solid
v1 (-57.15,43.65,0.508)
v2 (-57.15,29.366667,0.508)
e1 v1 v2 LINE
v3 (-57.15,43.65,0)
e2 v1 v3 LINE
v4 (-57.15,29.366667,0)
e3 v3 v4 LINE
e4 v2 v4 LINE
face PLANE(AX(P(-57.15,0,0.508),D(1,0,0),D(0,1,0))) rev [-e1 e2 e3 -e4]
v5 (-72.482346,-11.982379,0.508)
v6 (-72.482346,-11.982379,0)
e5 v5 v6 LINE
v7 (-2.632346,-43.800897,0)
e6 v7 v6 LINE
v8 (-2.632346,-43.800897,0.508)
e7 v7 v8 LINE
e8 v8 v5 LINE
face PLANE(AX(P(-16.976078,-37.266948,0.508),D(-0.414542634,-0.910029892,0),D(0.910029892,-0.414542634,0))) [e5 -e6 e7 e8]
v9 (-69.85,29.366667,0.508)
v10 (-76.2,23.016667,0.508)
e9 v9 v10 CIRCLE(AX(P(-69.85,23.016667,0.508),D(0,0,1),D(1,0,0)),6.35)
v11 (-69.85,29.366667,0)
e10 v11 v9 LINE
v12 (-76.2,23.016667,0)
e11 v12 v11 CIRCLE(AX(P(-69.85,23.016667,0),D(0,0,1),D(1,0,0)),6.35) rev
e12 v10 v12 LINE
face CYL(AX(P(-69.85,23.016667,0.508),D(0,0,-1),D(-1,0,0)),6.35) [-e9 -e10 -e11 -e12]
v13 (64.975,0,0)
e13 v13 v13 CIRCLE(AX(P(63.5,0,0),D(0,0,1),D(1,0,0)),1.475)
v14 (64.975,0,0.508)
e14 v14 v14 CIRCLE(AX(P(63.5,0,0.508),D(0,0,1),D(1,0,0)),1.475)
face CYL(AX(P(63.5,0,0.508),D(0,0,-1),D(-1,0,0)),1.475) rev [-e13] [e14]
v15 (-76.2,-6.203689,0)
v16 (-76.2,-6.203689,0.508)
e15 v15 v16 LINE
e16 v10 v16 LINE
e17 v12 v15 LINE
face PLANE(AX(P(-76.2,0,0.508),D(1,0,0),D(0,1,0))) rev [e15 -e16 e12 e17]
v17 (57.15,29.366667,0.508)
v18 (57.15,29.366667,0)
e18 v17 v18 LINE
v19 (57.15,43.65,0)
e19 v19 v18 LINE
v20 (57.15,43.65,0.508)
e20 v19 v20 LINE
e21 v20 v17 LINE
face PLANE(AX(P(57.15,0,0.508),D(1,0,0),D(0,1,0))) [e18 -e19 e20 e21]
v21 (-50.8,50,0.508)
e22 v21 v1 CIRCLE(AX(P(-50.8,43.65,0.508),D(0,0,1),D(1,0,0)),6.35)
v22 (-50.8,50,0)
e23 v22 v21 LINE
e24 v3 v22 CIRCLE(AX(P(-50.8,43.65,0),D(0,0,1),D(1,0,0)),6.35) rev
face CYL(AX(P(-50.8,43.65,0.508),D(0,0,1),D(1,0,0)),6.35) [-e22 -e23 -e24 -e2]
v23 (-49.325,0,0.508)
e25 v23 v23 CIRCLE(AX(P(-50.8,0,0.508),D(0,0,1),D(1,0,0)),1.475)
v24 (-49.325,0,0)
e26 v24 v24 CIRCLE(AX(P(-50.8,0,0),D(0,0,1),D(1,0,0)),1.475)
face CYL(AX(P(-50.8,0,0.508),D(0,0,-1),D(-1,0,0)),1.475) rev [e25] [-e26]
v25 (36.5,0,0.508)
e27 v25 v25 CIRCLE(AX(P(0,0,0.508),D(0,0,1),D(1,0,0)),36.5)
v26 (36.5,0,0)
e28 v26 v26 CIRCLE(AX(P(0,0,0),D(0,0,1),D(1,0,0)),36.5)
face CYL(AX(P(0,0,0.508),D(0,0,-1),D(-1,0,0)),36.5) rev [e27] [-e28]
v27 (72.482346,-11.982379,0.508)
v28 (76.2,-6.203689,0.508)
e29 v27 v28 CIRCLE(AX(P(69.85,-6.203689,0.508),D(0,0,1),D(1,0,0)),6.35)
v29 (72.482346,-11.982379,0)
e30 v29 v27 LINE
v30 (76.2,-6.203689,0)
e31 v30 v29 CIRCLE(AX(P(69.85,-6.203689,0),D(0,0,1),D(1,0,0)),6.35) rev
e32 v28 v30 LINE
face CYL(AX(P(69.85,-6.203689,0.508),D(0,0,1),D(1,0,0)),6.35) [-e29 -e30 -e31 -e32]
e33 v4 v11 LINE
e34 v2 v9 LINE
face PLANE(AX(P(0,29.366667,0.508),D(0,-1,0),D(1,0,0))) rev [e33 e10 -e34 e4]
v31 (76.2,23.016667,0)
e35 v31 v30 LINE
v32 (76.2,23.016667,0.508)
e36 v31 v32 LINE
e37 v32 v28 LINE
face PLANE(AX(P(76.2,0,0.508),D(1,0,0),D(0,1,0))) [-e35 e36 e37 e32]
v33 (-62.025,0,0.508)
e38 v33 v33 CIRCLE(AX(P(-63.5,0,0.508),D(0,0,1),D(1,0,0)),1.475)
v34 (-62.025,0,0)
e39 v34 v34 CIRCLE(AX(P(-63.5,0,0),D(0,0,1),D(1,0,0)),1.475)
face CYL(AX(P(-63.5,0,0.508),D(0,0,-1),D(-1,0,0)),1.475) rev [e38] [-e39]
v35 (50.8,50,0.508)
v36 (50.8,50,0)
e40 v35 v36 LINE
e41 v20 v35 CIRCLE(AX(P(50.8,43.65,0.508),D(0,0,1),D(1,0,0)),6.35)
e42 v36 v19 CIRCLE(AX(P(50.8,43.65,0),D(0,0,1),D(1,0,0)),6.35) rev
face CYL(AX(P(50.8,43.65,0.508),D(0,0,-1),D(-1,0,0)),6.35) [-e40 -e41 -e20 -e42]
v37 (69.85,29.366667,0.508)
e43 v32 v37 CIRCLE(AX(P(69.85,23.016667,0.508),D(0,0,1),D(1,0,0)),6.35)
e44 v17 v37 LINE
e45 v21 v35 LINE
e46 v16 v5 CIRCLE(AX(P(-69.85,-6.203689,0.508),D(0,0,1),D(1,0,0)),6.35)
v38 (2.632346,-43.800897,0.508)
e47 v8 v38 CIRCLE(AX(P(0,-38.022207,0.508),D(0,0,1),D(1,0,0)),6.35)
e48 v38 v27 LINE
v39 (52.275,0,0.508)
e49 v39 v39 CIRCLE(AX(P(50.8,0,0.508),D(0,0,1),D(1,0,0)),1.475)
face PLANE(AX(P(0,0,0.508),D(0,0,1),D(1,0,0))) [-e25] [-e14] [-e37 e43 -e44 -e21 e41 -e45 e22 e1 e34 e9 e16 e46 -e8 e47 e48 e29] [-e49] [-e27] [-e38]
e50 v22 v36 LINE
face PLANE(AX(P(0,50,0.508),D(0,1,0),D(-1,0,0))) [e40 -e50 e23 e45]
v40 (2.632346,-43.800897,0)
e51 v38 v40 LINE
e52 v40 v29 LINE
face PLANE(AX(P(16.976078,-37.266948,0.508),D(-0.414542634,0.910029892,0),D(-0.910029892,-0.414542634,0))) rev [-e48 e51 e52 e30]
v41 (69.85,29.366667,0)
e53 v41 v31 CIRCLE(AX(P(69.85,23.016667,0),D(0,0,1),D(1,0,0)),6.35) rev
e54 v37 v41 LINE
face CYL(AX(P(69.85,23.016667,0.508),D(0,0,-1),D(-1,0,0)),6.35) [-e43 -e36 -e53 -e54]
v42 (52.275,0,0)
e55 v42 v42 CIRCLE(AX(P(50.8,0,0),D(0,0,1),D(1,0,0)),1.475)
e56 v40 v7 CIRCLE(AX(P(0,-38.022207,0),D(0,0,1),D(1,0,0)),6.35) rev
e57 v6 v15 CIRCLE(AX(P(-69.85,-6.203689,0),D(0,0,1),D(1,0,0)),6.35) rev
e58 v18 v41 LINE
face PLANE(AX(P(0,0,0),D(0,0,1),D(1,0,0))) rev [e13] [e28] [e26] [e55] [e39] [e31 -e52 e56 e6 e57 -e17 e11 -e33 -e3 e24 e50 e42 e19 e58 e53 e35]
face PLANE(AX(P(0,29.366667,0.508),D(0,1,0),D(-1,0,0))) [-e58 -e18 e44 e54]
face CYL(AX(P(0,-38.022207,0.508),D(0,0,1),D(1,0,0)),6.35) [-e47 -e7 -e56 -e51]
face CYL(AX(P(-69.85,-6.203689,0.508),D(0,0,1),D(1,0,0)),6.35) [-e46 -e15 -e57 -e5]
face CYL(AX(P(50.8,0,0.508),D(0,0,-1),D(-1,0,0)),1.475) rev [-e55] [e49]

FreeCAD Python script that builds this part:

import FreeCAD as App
import Part
import Sketcher
Q = App.Units.Quantity


def edges_at(feature, points):
    """Names of the edges that pass closest to the given points."""
    edges = feature.Shape.Edges
    near = lambda p: min(range(len(edges)), key=lambda i: edges[i].distToShape(Part.Vertex(*p))[0])
    return sorted({f"Edge{near(p) + 1}" for p in points})


def add_polygon(sketch, points):
    """Adds a closed chain of lines whose ends are joined by coincident constraints."""
    first, n = sketch.GeometryCount, len(points)
    for a, b in zip(points, points[1:] + points[:1]):
        sketch.addGeometry(Part.LineSegment(App.Vector(*a, 0), App.Vector(*b, 0)), False)
    for i in range(n):
        sketch.addConstraint(Sketcher.Constraint("Coincident", first + i, 2, first + (i + 1) % n, 1))

doc = App.newDocument("Part")
body = doc.addObject("PartDesign::Body", "Body")

# Sketch on XY plane
sketch1 = body.newObject("Sketcher::SketchObject", "Sketch")
sketch1.AttachmentSupport = (doc.getObject("XY_Plane"), [""])
sketch1.MapMode = "FlatFace"
add_polygon(sketch1, [(57.1, 50), (-57.1, 50), (-57.1, 29.4), (-76.2, 29.4), (-76.2, -10.3), (-57.1, -19), (0, -45), (57.1, -19), (76.2, -10.3), (76.2, 29.4), (57.1, 29.4)])  # lines 0-10
sketch1.addGeometry(Part.Circle(App.Vector(-50.8, 0, 0), App.Vector(0, 0, 1), 1.5), False)  # 11
sketch1.addGeometry(Part.Circle(App.Vector(0, 0, 0), App.Vector(0, 0, 1), 36.5), False)  # 12
sketch1.addGeometry(Part.Circle(App.Vector(50.8, 0, 0), App.Vector(0, 0, 1), 1.5), False)  # 13
sketch1.addGeometry(Part.Circle(App.Vector(63.5, 0, 0), App.Vector(0, 0, 1), 1.5), False)  # 14
sketch1.addGeometry(Part.Circle(App.Vector(-63.5, 0, 0), App.Vector(0, 0, 1), 1.5), False)  # 15
sketch1.addConstraint([
    Sketcher.Constraint("Horizontal", 0),
    Sketcher.Constraint("Vertical", 1),
    Sketcher.Constraint("Horizontal", 2),
    Sketcher.Constraint("Vertical", 3),
    Sketcher.Constraint("Vertical", 8),
    Sketcher.Constraint("Horizontal", 9),
    Sketcher.Constraint("Vertical", 10),
    Sketcher.Constraint("Coincident", 12, 3, -1, 1),
    Sketcher.Constraint("Equal", 11, 13),
    Sketcher.Constraint("Equal", 13, 14),
    Sketcher.Constraint("Equal", 14, 15),
    Sketcher.Constraint("Symmetric", 11, 3, 13, 3, -1, 1),
    Sketcher.Constraint("Symmetric", 14, 3, 15, 3, -1, 1),
    Sketcher.Constraint("Symmetric", 4, 2, 6, 2, -2),
    Sketcher.Constraint("Symmetric", 3, 2, 7, 2, -2),
    Sketcher.Constraint("Symmetric", 1, 2, 9, 2, -2),
    Sketcher.Constraint("PointOnObject", 11, 3, -1),
    Sketcher.Constraint("PointOnObject", 14, 3, -1),
    Sketcher.Constraint("PointOnObject", 5, 2, -2),
    Sketcher.Constraint("Parallel", 4, 5),
    Sketcher.Constraint("Vertical", 1, 2, 4, 2),
    Sketcher.Constraint("DistanceX", 0, 2, 0, 1, Q("4.5 in")),
    Sketcher.Constraint("DistanceX", 11, 3, -1, 1, Q("2 in")),
    Sketcher.Constraint("DistanceX", 2, 2, -1, 1, Q("3 in")),
    Sketcher.Constraint("DistanceX", 15, 3, 14, 3, Q("5 in")),
    Sketcher.Constraint("Diameter", 11, Q("2.95 mm")),
    Sketcher.Constraint("Diameter", 12, Q("73 mm")),
    Sketcher.Constraint("DistanceY", -1, 1, 0, 2, Q("50 mm")),
    Sketcher.Constraint("DistanceY", 5, 2, -1, 1, Q("45 mm")),
    Sketcher.Constraint("Distance", 4, Q("20.933378 mm")),
    Sketcher.Constraint("DistanceY", 1, 2, 1, 1, Q("20.633333 mm")),
])
pad1 = body.newObject("PartDesign::Pad", "Pad")
pad1.Profile = sketch1
pad1.Length = Q("0.02 in")
doc.recompute()

fillet = body.newObject("PartDesign::Fillet", "Fillet")
fillet.Base = (pad1, edges_at(pad1, [
    (0, -45, 0.254),
    (-76.2, -10.289, 0.254),
    (-76.2, 29.367, 0.254),
    (-57.15, 50, 0.254),
    (57.15, 50, 0.254),
    (76.2, 29.367, 0.254),
    (76.2, -10.289, 0.254),
]))
fillet.Radius = Q("0.25 in")

doc.recompute()
